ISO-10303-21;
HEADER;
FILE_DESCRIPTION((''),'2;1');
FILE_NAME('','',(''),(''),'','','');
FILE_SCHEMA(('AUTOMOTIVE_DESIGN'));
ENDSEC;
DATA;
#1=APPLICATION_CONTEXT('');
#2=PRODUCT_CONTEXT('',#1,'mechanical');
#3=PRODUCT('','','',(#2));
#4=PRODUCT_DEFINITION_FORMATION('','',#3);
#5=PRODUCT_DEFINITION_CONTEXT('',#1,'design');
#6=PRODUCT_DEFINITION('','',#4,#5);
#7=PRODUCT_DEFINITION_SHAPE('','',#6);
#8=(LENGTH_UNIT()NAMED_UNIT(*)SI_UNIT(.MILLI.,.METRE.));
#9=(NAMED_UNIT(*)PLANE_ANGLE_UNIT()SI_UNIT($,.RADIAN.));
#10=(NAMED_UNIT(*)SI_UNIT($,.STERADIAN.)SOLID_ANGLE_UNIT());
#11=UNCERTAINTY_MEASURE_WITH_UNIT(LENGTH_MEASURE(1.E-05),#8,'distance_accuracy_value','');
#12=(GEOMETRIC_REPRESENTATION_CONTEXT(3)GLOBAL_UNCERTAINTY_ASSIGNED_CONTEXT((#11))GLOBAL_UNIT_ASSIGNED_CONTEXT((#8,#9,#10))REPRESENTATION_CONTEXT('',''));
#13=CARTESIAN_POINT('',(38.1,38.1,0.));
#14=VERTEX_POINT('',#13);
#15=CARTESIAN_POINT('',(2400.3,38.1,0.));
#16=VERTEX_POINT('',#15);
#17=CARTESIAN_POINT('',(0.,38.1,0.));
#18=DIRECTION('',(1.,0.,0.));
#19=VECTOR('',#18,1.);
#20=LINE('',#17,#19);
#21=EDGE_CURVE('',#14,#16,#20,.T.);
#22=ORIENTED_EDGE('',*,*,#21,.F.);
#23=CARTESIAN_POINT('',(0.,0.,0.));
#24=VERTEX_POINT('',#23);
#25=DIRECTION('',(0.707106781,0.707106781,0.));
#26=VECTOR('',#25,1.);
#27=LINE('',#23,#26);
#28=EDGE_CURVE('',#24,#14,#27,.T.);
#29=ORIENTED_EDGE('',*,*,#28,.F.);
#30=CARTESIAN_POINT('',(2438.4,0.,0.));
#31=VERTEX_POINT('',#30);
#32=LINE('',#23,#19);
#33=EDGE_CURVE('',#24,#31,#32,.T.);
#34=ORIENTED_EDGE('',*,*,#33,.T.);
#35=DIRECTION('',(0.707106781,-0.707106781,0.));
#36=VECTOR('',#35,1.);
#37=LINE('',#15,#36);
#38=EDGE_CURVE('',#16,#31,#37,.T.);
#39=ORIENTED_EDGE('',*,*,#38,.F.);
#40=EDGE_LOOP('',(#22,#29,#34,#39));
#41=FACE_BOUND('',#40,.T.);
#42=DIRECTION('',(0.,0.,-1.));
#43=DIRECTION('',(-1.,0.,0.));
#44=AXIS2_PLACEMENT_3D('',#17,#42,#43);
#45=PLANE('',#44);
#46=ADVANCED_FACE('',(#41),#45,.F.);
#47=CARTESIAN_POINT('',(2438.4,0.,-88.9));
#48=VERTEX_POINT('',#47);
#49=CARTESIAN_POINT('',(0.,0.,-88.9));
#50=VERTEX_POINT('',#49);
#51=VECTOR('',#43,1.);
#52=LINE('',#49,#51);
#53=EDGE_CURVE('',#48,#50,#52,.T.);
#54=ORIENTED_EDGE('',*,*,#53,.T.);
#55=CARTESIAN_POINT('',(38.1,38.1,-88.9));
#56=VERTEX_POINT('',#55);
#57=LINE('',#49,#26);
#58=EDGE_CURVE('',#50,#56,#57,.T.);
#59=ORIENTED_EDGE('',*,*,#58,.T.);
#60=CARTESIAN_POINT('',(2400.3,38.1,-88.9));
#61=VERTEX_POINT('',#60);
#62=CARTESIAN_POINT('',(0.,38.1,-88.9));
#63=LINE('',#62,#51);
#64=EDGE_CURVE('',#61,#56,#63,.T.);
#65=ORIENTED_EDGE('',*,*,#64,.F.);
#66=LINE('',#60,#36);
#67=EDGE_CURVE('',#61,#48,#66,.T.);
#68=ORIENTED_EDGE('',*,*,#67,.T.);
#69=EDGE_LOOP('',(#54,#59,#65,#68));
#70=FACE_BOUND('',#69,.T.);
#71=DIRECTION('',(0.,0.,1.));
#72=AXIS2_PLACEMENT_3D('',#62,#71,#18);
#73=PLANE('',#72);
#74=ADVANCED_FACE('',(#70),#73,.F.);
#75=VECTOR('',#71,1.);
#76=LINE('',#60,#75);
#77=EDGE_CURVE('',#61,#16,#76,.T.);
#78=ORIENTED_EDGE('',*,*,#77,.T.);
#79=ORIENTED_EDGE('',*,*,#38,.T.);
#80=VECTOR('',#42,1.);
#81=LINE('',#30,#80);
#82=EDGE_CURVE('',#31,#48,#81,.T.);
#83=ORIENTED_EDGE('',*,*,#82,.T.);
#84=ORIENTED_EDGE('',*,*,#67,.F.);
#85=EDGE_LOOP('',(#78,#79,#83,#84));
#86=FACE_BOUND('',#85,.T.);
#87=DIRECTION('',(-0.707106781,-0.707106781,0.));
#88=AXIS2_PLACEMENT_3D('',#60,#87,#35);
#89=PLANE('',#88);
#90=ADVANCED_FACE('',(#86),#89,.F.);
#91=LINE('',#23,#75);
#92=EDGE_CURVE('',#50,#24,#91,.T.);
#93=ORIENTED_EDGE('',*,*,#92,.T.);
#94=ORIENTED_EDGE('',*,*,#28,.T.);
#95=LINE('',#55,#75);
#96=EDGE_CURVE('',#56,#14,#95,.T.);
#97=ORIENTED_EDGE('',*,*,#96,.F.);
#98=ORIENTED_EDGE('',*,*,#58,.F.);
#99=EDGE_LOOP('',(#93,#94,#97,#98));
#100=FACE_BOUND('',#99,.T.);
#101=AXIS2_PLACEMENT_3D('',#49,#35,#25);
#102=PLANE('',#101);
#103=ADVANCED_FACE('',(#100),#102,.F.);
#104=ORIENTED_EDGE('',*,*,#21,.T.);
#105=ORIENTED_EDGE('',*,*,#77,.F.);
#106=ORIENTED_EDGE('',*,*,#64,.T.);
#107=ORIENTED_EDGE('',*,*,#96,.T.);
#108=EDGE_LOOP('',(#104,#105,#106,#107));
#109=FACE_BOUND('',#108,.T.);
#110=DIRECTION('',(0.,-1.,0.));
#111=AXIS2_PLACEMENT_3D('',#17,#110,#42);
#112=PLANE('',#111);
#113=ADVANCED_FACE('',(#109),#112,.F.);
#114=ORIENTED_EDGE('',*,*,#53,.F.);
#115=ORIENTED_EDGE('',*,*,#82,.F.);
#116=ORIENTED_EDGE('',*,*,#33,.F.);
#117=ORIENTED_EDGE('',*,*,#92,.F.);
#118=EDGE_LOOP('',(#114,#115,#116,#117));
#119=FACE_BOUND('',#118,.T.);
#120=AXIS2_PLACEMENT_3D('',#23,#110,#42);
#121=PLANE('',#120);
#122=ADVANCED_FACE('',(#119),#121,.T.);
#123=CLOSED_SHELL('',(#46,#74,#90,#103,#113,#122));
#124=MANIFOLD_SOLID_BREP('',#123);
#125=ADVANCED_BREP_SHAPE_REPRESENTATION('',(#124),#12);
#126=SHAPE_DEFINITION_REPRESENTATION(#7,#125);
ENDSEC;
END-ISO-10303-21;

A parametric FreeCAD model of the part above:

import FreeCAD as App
import Part
import Sketcher

V = App.Vector
Q = App.Units.Quantity

doc = App.newDocument("Part")
body = doc.addObject("PartDesign::Body", "Body")

sketch1 = doc.addObject("Sketcher::SketchObject", "Sketch")
body.addObject(sketch1)
sketch1.AttachmentSupport = (doc.XZ_Plane, [""])
sketch1.MapMode = "FlatFace"
sketch1.addGeometry([
    Part.LineSegment(V(0, -89, 0), V(0, 0, 0)),
    Part.LineSegment(V(0, 0, 0), V(2438, 0, 0)),
    Part.LineSegment(V(2438, 0, 0), V(2438, -89, 0)),
    Part.LineSegment(V(2438, -89, 0), V(0, -89, 0)),
], False)
sketch1.addConstraint([
    Sketcher.Constraint("Coincident", 0, 2, 1, 1),
    Sketcher.Constraint("Coincident", 1, 2, 2, 1),
    Sketcher.Constraint("Coincident", 2, 2, 3, 1),
    Sketcher.Constraint("Coincident", 3, 2, 0, 1),
    Sketcher.Constraint("Vertical", 0),
    Sketcher.Constraint("Horizontal", 1),
    Sketcher.Constraint("Vertical", 2),
    Sketcher.Constraint("Horizontal", 3),
    Sketcher.Constraint("Coincident", 0, 2, -1, 1),
    Sketcher.Constraint("DistanceX", 1, 1, 1, 2, Q("96 in")),
    Sketcher.Constraint("DistanceY", 0, 1, 0, 2, Q("3.5 in")),
])
pad1 = doc.addObject("PartDesign::Pad", "Pad")
body.addObject(pad1)
pad1.Profile = sketch1
pad1.Length = Q("1.5 in")
pad1.Reversed = True

sketch2 = doc.addObject("Sketcher::SketchObject", "Sketch001")
body.addObject(sketch2)
sketch2.AttachmentSupport = (doc.XY_Plane, [""])
sketch2.MapMode = "FlatFace"
sketch2.addGeometry([
    Part.LineSegment(V(0, 0, 0), V(38, 38, 0)),
    Part.LineSegment(V(38, 38, 0), V(0, 38, 0)),
    Part.LineSegment(V(0, 38, 0), V(0, 0, 0)),
    Part.LineSegment(V(2438, 0, 0), V(2438, 38, 0)),
    Part.LineSegment(V(2438, 38, 0), V(2400, 38, 0)),
    Part.LineSegment(V(2400, 38, 0), V(2438, 0, 0)),
], False)
sketch2.addConstraint([
    Sketcher.Constraint("Coincident", 0, 2, 1, 1),
    Sketcher.Constraint("Coincident", 1, 2, 2, 1),
    Sketcher.Constraint("Coincident", 2, 2, 0, 1),
    Sketcher.Constraint("Coincident", 3, 2, 4, 1),
    Sketcher.Constraint("Coincident", 4, 2, 5, 1),
    Sketcher.Constraint("Coincident", 5, 2, 3, 1),
    Sketcher.Constraint("Horizontal", 1),
    Sketcher.Constraint("Vertical", 2),
    Sketcher.Constraint("Vertical", 3),
    Sketcher.Constraint("Horizontal", 4),
    Sketcher.Constraint("Coincident", 2, 2, -1, 1),
    Sketcher.Constraint("PointOnObject", 5, 2, -1),
    Sketcher.Constraint("Perpendicular", 0, 5),
    Sketcher.Constraint("Horizontal", 1, 2, 3, 2),
    Sketcher.Constraint("Equal", 1, 4),
    Sketcher.Constraint("DistanceX", 1, 2, 1, 1, Q("1.5 in")),
    Sketcher.Constraint("DistanceX", -1, 1, 3, 2, Q("96 in")),
])
pocket1 = doc.addObject("PartDesign::Pocket", "Pocket")
body.addObject(pocket1)
pocket1.Profile = sketch2
pocket1.Type = "ThroughAll"

doc.recompute()
